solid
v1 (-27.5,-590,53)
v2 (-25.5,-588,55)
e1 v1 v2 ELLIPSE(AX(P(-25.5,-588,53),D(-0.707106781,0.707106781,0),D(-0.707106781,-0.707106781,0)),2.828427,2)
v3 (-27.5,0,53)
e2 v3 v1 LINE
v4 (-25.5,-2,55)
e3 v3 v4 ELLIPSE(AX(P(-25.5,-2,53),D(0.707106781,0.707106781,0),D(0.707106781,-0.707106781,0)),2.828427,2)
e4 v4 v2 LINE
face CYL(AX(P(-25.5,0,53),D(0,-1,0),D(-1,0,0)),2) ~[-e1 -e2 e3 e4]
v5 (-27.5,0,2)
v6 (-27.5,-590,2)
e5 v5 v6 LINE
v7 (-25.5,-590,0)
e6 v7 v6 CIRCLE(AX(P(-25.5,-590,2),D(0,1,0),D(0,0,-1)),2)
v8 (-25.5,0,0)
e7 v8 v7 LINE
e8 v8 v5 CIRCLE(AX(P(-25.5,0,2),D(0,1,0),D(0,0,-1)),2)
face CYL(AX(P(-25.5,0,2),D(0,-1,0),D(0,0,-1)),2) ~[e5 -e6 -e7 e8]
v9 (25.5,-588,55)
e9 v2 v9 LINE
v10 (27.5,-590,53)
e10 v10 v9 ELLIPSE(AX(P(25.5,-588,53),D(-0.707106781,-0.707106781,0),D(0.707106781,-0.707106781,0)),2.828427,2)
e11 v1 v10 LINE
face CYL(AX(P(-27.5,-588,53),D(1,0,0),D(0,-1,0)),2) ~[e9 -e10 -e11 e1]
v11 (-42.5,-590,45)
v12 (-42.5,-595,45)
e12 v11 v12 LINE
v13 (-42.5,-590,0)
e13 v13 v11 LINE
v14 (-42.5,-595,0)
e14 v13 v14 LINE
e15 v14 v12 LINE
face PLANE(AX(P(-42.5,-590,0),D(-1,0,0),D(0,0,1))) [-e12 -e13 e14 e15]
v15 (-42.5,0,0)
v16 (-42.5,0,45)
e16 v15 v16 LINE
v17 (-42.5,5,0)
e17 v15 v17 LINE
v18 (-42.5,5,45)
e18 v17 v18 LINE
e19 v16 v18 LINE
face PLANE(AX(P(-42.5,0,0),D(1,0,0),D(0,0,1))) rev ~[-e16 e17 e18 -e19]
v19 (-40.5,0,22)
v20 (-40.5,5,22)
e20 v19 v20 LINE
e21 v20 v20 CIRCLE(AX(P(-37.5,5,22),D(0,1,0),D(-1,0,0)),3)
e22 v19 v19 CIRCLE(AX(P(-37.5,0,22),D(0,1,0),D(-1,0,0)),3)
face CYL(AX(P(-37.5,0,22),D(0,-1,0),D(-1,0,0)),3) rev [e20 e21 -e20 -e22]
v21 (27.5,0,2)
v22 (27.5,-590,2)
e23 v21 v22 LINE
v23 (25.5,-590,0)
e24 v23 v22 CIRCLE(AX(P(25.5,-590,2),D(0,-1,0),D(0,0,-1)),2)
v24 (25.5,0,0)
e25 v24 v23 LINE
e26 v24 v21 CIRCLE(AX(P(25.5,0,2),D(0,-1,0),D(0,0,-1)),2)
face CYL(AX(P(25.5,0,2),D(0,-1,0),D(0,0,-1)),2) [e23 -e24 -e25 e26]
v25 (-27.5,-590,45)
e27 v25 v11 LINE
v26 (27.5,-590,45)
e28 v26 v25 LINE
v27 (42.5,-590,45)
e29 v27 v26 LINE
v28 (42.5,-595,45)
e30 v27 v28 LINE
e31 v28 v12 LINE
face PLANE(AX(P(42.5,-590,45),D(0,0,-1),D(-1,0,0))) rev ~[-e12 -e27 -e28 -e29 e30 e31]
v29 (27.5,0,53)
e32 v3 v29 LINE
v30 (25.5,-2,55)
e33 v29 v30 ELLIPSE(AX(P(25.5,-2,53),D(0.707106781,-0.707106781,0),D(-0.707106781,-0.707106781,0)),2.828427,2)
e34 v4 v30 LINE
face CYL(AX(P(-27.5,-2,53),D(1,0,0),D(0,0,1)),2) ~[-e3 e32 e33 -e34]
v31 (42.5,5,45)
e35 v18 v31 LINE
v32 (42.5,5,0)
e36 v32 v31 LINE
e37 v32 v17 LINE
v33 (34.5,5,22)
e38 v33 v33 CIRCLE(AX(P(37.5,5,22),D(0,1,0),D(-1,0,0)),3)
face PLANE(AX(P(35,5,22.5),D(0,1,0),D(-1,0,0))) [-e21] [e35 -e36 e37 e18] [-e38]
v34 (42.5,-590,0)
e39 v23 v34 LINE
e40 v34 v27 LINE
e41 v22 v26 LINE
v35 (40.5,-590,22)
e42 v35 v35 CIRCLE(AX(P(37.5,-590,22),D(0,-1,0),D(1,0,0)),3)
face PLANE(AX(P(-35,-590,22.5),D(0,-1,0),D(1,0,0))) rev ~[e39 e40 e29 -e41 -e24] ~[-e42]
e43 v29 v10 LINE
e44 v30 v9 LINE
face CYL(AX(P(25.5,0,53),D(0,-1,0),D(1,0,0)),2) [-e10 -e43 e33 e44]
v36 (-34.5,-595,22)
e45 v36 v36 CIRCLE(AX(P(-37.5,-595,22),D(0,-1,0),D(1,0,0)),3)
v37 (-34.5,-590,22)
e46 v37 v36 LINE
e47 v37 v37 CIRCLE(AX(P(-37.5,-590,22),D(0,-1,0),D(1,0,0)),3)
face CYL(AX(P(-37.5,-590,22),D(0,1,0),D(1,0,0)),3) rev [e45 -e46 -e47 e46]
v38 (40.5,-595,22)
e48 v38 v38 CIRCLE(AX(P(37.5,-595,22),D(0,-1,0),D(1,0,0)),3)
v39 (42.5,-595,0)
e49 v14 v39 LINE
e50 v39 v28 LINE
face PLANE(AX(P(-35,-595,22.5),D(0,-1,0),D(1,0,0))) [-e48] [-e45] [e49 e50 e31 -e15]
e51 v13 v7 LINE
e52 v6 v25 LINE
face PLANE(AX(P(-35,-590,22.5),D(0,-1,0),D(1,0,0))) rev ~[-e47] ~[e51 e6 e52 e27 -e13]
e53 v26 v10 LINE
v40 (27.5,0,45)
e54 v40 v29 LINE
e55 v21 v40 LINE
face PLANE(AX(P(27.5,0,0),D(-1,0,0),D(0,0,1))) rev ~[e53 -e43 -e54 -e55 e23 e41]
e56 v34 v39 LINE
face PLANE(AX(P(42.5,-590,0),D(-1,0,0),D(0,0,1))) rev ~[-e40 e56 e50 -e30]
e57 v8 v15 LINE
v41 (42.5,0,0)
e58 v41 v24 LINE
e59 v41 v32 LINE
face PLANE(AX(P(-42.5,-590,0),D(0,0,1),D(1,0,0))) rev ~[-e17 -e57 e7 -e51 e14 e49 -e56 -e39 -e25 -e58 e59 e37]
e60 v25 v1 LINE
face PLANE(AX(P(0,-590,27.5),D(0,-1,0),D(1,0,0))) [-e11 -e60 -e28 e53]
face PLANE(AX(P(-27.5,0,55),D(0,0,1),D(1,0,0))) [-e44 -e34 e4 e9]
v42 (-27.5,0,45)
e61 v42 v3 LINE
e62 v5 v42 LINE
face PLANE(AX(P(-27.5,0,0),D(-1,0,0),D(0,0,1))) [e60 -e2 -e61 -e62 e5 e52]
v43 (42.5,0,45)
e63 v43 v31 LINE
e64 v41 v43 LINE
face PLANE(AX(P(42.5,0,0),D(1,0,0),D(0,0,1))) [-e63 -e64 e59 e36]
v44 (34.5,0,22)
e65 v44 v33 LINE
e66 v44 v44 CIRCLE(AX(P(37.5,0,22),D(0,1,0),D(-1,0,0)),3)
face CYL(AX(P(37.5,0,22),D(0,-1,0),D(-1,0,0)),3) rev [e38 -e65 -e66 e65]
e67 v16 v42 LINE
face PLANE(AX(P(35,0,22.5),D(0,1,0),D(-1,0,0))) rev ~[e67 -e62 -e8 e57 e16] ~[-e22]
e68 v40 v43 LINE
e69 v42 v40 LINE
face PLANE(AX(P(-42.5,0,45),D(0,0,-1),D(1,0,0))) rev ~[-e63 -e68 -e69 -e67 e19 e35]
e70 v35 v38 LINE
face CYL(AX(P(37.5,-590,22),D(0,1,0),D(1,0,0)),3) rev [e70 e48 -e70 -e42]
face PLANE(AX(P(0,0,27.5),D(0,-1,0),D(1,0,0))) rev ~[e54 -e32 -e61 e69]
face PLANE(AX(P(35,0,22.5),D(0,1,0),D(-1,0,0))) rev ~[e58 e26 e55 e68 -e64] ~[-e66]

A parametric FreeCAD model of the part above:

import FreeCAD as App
import Part
import Sketcher
Q = App.Units.Quantity


def edges_at(feature, points):
    """Names of the edges that pass closest to the given points."""
    edges = feature.Shape.Edges
    near = lambda p: min(range(len(edges)), key=lambda i: edges[i].distToShape(Part.Vertex(*p))[0])
    return sorted({f"Edge{near(p) + 1}" for p in points})


def add_polygon(sketch, points):
    """Adds a closed chain of lines whose ends are joined by coincident constraints."""
    first, n = sketch.GeometryCount, len(points)
    for a, b in zip(points, points[1:] + points[:1]):
        sketch.addGeometry(Part.LineSegment(App.Vector(*a, 0), App.Vector(*b, 0)), False)
    for i in range(n):
        sketch.addConstraint(Sketcher.Constraint("Coincident", first + i, 2, first + (i + 1) % n, 1))

doc = App.newDocument("Part")
body = doc.addObject("PartDesign::Body", "Body")

# Sketch on XZ plane
sketch1 = doc.addObject("Sketcher::SketchObject", "Sketch")
body.addObject(sketch1)
sketch1.AttachmentSupport = (doc.XZ_Plane, [""])
sketch1.MapMode = "FlatFace"
add_polygon(sketch1, [(-28, 55), (-28, 0), (28, 0), (28, 55)])  # lines 0-3
sketch1.addConstraint([
    Sketcher.Constraint("Vertical", 0),
    Sketcher.Constraint("Horizontal", 1),
    Sketcher.Constraint("Vertical", 2),
    Sketcher.Constraint("Horizontal", 3),
    Sketcher.Constraint("Symmetric", 0, 2, 1, 2, -1, 1),
    Sketcher.Constraint("Equal", 3, 0),
    Sketcher.Constraint("DistanceX", 1, 1, 1, 2, Q("55 mm")),
])
pad1 = doc.addObject("PartDesign::Pad", "Pad")
body.addObject(pad1)
pad1.Profile = sketch1
pad1.Length = 590

# Sketch on XZ plane
sketch2 = doc.addObject("Sketcher::SketchObject", "Sketch001")
body.addObject(sketch2)
sketch2.AttachmentSupport = (doc.XZ_Plane, [""])
sketch2.MapMode = "FlatFace"
add_polygon(sketch2, [(42.5, 45), (42.5, 0), (-42.5, 0), (-42.5, 45)])  # lines 0-3
sketch2.addGeometry(Part.Circle(App.Vector(37.5, 22, 0), App.Vector(0, 0, 1), 3), False)  # 4
sketch2.addGeometry(Part.Circle(App.Vector(-37.5, 22, 0), App.Vector(0, 0, 1), 3), False)  # 5
sketch2.addConstraint([
    Sketcher.Constraint("Vertical", 0),
    Sketcher.Constraint("Horizontal", 1),
    Sketcher.Constraint("Vertical", 2),
    Sketcher.Constraint("Horizontal", 3),
    Sketcher.Constraint("Equal", 4, 5),
    Sketcher.Constraint("Symmetric", 0, 2, 1, 2, -1, 1),
    Sketcher.Constraint("Symmetric", 4, 3, 5, 3, -2),
    Sketcher.Constraint("Diameter", 4, Q("6 mm")),
    Sketcher.Constraint("DistanceX", 1, 2, 1, 1, Q("85 mm")),
    Sketcher.Constraint("DistanceY", 0, 2, 0, 1, Q("45 mm")),
    Sketcher.Constraint("DistanceY", -1, 1, 4, 3, Q("22 mm")),
    Sketcher.Constraint("DistanceX", 5, 3, 4, 3, Q("75 mm")),
])
pad2 = doc.addObject("PartDesign::Pad", "Pad001")
body.addObject(pad2)
pad2.Profile = sketch2
pad2.Length = 5
pad2.Reversed = True

# Sketch on XZ plane
sketch3 = doc.addObject("Sketcher::SketchObject", "Sketch002")
body.addObject(sketch3)
sketch3.AttachmentSupport = (doc.XZ_Plane, [""])
sketch3.MapMode = "FlatFace"
sketch3.AttachmentOffset = App.Placement(App.Vector(0, 0, 590), App.Rotation())
add_polygon(sketch3, [(-42.5, 45), (-42.5, 0), (42.5, 0), (42.5, 45)])  # lines 0-3
sketch3.addGeometry(Part.Circle(App.Vector(-37.5, 22, 0), App.Vector(0, 0, 1), 3), False)  # 4
sketch3.addGeometry(Part.Circle(App.Vector(37.5, 22, 0), App.Vector(0, 0, 1), 3), False)  # 5
sketch3.addConstraint([
    Sketcher.Constraint("Vertical", 0),
    Sketcher.Constraint("Horizontal", 1),
    Sketcher.Constraint("Vertical", 2),
    Sketcher.Constraint("Horizontal", 3),
    Sketcher.Constraint("Equal", 4, 5),
    Sketcher.Constraint("Symmetric", 0, 2, 1, 2, -1, 1),
    Sketcher.Constraint("Symmetric", 4, 3, 5, 3, -2),
    Sketcher.Constraint("Diameter", 4, Q("6 mm")),
    Sketcher.Constraint("DistanceX", 1, 1, 1, 2, Q("85 mm")),
    Sketcher.Constraint("DistanceY", 0, 2, 0, 1, Q("45 mm")),
    Sketcher.Constraint("DistanceY", -1, 1, 4, 3, Q("22 mm")),
    Sketcher.Constraint("DistanceX", 4, 3, 5, 3, Q("75 mm")),
])
pad3 = doc.addObject("PartDesign::Pad", "Pad002")
body.addObject(pad3)
pad3.Profile = sketch3
pad3.Length = 5
doc.recompute()

fillet = doc.addObject("PartDesign::Fillet", "Fillet")
body.addObject(fillet)
fillet.Base = (pad3, edges_at(pad3, [
    (27.5, -295, 55),
    (-27.5, -295, 55),
    (0, 0, 55),
    (0, -590, 55),
    (-27.5, -295, 0),
    (27.5, -295, 0),
]))
fillet.Radius = 2

doc.recompute()
